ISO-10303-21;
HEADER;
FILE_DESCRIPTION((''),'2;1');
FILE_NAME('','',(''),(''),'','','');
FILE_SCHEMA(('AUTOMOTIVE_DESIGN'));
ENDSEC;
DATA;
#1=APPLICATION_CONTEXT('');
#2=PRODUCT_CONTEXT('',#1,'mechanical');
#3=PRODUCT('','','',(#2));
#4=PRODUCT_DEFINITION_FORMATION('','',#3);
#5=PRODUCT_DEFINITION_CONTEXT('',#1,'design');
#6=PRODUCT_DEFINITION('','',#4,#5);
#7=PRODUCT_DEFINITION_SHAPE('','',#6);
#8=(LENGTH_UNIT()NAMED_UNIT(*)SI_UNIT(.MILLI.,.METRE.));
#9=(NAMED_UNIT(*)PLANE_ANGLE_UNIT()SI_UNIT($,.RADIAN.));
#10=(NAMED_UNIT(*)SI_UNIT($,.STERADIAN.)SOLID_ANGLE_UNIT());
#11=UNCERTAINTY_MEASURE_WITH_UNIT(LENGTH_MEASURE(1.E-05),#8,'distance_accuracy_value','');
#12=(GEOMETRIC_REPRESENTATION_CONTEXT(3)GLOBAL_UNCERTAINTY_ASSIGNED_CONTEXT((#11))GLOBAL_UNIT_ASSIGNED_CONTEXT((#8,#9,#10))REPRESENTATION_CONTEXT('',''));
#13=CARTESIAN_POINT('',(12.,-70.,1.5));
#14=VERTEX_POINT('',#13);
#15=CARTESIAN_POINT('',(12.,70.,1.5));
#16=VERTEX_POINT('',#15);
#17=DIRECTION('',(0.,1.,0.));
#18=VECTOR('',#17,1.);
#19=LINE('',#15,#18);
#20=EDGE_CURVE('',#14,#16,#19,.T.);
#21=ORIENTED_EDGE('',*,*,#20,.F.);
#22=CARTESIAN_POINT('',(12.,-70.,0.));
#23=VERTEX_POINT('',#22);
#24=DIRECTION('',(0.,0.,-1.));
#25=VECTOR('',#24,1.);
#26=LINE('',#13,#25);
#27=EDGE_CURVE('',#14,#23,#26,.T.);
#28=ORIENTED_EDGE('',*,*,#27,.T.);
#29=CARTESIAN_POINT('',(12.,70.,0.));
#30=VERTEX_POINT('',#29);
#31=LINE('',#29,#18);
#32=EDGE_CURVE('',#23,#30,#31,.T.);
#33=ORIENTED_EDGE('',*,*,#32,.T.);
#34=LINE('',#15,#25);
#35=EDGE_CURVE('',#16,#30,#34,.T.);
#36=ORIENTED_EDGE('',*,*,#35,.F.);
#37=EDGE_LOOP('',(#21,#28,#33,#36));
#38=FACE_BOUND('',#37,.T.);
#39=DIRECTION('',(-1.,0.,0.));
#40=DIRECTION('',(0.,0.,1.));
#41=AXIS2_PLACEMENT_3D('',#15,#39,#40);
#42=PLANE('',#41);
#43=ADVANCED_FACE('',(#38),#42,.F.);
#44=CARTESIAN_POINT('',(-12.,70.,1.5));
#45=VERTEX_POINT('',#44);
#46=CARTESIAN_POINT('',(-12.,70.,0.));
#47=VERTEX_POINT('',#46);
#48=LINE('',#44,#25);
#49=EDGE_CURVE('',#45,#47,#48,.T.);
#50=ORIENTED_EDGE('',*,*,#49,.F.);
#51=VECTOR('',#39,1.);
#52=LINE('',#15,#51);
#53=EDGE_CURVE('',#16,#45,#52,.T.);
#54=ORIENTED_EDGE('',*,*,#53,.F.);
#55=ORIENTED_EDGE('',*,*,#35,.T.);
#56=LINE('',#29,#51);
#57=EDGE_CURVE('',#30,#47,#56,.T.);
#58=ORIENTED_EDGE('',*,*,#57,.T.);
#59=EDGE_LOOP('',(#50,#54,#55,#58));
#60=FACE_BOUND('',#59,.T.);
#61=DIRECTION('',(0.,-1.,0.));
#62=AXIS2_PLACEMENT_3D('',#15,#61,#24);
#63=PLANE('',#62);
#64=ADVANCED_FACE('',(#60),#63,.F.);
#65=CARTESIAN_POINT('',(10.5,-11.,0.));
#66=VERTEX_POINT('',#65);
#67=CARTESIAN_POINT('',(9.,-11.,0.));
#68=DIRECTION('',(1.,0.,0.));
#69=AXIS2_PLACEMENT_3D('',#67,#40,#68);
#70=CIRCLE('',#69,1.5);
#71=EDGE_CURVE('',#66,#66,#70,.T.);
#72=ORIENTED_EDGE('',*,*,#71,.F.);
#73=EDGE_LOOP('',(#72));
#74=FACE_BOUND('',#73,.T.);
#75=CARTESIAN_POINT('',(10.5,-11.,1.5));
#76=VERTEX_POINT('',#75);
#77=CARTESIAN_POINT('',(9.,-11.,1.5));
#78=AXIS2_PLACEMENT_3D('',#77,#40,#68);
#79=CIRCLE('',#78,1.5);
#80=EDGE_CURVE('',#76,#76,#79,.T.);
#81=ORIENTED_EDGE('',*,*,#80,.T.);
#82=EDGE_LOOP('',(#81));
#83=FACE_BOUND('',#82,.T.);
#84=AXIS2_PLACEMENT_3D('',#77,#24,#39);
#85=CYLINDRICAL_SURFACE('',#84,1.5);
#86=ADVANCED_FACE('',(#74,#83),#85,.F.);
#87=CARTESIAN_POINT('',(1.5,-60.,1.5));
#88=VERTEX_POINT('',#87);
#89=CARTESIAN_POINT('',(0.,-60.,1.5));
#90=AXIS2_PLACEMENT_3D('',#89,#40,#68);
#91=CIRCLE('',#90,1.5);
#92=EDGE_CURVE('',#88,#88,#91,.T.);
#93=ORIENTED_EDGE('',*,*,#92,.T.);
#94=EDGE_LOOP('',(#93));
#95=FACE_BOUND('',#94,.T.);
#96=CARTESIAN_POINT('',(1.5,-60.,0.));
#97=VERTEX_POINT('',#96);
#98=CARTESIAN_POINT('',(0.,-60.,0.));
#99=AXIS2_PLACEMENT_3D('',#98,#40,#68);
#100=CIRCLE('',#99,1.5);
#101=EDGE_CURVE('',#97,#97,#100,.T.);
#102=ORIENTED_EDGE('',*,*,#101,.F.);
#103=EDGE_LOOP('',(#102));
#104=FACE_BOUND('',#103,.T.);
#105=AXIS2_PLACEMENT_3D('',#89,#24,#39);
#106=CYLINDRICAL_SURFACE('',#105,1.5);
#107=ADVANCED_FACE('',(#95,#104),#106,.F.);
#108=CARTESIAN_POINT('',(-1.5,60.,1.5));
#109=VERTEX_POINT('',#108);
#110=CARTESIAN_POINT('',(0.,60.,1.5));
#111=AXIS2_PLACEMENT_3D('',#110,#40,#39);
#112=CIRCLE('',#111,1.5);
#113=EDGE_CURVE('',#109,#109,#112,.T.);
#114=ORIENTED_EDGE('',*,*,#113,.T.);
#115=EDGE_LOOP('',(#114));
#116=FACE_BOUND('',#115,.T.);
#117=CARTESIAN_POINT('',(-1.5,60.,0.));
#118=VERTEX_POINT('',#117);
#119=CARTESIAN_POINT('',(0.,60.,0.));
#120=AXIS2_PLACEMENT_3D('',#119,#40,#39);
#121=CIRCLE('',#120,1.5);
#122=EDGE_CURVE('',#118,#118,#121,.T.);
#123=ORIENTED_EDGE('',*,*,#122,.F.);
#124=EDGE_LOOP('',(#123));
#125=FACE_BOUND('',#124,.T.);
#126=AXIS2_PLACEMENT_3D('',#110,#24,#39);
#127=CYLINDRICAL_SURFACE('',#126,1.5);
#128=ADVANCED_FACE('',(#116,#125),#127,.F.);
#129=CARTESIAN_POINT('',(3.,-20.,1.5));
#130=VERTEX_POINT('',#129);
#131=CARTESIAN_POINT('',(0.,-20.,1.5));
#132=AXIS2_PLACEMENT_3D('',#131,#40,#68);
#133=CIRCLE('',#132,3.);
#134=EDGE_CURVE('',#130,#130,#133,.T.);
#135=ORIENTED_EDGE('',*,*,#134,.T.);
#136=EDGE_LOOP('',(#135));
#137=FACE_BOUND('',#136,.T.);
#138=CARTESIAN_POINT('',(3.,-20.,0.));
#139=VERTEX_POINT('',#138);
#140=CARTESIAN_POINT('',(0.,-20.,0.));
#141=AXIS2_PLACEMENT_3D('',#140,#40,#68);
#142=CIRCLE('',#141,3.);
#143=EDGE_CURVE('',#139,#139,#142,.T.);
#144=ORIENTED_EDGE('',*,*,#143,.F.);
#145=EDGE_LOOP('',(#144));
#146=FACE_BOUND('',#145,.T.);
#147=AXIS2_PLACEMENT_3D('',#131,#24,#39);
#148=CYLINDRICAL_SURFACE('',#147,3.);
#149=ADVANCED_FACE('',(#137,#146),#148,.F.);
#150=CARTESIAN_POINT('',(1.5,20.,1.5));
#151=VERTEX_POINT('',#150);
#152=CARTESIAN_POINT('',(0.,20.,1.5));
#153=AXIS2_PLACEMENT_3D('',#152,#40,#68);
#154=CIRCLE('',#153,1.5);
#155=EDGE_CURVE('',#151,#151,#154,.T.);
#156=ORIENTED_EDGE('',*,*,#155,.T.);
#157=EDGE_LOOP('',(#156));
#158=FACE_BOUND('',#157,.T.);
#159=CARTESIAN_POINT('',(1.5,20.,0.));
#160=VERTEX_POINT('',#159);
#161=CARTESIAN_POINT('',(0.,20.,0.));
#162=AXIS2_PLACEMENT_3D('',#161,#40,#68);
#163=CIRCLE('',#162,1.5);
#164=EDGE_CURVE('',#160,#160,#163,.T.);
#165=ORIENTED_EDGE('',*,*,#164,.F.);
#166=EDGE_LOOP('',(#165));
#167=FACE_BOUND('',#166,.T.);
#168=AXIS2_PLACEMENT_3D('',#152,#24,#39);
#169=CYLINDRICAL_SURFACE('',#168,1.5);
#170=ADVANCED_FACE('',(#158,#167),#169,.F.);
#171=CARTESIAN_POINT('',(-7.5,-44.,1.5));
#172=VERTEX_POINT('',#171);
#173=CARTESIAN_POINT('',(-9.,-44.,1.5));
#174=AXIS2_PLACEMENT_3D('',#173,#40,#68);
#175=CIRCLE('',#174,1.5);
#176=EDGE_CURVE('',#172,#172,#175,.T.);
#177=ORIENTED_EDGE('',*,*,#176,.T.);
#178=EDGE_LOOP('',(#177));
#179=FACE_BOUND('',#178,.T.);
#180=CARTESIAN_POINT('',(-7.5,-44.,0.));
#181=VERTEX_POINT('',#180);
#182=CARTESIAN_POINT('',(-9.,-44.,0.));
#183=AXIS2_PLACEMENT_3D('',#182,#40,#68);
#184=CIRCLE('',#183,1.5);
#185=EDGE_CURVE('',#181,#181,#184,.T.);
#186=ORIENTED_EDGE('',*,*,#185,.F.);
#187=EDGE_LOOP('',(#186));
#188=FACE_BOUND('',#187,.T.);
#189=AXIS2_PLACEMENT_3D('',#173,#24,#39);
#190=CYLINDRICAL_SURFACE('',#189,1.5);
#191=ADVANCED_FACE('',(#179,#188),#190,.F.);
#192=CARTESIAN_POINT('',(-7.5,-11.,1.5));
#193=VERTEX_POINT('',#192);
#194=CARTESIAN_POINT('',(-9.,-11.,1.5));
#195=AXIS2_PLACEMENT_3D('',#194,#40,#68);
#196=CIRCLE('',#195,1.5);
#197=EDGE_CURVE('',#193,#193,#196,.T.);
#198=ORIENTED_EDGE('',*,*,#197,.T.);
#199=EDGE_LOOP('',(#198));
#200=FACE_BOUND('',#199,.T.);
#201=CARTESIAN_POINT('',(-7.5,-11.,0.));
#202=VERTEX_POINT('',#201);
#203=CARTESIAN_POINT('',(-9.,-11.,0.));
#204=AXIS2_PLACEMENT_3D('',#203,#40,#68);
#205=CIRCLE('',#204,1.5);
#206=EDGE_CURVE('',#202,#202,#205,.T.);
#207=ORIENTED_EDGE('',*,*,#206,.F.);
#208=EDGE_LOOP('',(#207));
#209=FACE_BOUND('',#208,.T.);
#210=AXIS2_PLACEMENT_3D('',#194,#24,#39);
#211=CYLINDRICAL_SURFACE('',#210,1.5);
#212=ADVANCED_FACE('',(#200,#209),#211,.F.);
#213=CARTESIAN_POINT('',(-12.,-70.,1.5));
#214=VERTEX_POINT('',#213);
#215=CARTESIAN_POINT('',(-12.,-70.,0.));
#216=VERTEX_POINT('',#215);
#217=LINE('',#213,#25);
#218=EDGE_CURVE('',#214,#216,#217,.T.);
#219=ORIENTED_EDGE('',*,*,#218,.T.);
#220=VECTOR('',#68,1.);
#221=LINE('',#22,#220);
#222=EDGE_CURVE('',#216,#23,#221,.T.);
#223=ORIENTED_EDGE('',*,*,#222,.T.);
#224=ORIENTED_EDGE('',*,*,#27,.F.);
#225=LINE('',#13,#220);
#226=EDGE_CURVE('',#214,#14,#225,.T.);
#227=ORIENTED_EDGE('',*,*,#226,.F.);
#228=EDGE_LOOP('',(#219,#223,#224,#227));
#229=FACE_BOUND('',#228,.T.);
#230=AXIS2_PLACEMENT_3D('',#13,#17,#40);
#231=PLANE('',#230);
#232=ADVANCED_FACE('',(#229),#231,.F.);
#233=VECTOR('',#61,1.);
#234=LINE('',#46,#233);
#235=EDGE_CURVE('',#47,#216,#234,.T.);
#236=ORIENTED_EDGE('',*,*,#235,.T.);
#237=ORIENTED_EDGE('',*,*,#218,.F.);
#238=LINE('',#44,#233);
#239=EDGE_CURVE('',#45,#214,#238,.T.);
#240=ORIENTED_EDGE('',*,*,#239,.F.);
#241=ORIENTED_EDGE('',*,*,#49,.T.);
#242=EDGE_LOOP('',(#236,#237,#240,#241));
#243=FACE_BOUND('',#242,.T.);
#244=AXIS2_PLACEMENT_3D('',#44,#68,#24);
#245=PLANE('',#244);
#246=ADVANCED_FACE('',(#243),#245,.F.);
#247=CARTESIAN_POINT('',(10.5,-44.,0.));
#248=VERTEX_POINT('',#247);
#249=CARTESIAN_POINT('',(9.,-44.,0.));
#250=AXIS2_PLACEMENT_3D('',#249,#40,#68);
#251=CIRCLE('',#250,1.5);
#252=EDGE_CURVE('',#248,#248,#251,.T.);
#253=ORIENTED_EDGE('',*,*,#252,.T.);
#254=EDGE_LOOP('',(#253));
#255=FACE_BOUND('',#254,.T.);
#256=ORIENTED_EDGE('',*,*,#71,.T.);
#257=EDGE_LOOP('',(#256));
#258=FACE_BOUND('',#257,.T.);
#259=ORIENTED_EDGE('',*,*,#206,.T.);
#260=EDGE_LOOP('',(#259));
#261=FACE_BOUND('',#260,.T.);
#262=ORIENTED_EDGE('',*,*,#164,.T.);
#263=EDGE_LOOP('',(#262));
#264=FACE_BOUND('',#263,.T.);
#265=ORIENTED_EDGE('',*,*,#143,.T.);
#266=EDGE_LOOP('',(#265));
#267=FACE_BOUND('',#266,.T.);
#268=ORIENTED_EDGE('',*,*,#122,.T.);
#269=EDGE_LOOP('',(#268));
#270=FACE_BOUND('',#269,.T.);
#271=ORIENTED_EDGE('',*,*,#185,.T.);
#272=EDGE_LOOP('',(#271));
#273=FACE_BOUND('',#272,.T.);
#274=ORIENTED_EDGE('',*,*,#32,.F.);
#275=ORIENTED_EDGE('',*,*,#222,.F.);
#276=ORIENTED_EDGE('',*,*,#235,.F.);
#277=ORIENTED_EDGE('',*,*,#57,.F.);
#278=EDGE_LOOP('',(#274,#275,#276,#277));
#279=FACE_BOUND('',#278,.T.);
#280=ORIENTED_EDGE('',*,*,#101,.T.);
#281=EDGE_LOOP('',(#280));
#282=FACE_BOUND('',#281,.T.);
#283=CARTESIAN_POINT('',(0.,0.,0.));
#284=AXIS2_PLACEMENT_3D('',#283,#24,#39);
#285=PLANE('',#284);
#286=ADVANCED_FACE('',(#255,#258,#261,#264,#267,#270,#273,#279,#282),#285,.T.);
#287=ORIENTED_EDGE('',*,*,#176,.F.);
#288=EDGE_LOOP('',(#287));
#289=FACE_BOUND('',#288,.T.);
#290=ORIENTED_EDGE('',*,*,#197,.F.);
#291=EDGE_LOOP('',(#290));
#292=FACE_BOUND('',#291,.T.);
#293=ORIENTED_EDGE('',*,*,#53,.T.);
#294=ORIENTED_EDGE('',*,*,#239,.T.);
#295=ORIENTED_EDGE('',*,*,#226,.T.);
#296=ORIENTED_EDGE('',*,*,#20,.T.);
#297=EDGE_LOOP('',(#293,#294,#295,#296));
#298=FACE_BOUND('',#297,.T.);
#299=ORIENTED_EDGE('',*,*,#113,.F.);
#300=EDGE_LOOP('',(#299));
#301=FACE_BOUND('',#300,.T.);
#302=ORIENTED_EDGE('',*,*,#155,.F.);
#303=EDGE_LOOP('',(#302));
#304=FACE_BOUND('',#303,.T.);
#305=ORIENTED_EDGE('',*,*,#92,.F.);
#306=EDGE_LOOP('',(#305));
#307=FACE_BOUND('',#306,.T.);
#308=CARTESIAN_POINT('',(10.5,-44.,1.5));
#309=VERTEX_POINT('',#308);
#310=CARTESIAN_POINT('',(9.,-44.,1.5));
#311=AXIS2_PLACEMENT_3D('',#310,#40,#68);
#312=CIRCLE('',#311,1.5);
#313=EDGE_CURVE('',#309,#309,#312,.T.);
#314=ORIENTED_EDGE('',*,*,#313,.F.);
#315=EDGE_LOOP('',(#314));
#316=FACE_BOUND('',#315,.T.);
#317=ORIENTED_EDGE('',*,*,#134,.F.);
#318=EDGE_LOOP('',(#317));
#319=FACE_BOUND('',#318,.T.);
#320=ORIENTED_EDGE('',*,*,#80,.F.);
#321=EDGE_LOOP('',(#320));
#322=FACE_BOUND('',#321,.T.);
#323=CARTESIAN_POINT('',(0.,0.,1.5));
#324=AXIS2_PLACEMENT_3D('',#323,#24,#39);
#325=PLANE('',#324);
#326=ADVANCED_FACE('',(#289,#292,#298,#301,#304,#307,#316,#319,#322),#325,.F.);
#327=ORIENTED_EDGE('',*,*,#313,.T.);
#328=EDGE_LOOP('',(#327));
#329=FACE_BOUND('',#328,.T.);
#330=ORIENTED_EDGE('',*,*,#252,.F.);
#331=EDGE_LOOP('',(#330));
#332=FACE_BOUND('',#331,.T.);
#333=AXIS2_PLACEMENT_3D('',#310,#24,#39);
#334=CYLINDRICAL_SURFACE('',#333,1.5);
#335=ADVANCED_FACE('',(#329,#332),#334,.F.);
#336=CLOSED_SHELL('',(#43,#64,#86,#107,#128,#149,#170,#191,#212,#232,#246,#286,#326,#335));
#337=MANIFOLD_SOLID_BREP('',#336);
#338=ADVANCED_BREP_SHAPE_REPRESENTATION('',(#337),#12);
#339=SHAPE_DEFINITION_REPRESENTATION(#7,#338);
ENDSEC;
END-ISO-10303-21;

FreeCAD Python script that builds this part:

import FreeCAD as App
import Part
import Sketcher
Q = App.Units.Quantity


def add_polygon(sketch, points):
    """Adds a closed chain of lines whose ends are joined by coincident constraints."""
    first, n = sketch.GeometryCount, len(points)
    for a, b in zip(points, points[1:] + points[:1]):
        sketch.addGeometry(Part.LineSegment(App.Vector(*a, 0), App.Vector(*b, 0)), False)
    for i in range(n):
        sketch.addConstraint(Sketcher.Constraint("Coincident", first + i, 2, first + (i + 1) % n, 1))

doc = App.newDocument("Part")
params = doc.addObject("Spreadsheet::Sheet", "Params")
for row, (alias, value) in enumerate([
    ("sketch1_diameter", "3 mm"),
    ("sketch1_diameter2", "6 mm"),
    ("sketch1_width", "24 mm"),
    ("sketch1_height", "140 mm"),
    ("pad1_length", "1.5 mm"),
], start=1):
    params.set(f"A{row}", alias)
    params.set(f"B{row}", "=" + value)
    params.setAlias(f"B{row}", alias)

body = doc.addObject("PartDesign::Body", "Body")

sketch1 = body.newObject("Sketcher::SketchObject", "Sketch")
sketch1.AttachmentSupport = (doc.getObject("XY_Plane"), [""])
sketch1.MapMode = "FlatFace"
add_polygon(sketch1, [(-12, 70), (-12, -70), (12, -70), (12, 70)])
sketch1.addGeometry(Part.Circle(App.Vector(-9, -44, 0), App.Vector(0, 0, 1), 1.5), False)
sketch1.addGeometry(Part.Circle(App.Vector(-9, -11, 0), App.Vector(0, 0, 1), 1.5), False)
sketch1.addGeometry(Part.Circle(App.Vector(0, -60, 0), App.Vector(0, 0, 1), 1.5), False)
sketch1.addGeometry(Part.Circle(App.Vector(9, -44, 0), App.Vector(0, 0, 1), 1.5), False)
sketch1.addGeometry(Part.Circle(App.Vector(0, -20, 0), App.Vector(0, 0, 1), 3), False)
sketch1.addGeometry(Part.Circle(App.Vector(9, -11, 0), App.Vector(0, 0, 1), 1.5), False)
sketch1.addGeometry(Part.Circle(App.Vector(0, 20, 0), App.Vector(0, 0, 1), 1.5), False)
sketch1.addGeometry(Part.Circle(App.Vector(0, 60, 0), App.Vector(0, 0, 1), 1.5), False)
sketch1.addConstraint([
    Sketcher.Constraint("Vertical", 0),
    Sketcher.Constraint("Horizontal", 1),
    Sketcher.Constraint("Vertical", 2),
    Sketcher.Constraint("Horizontal", 3),
    Sketcher.Constraint("Equal", 4, 5),
    Sketcher.Constraint("Equal", 5, 6),
    Sketcher.Constraint("Equal", 6, 7),
    Sketcher.Constraint("Equal", 7, 9),
    Sketcher.Constraint("Equal", 9, 10),
    Sketcher.Constraint("Equal", 10, 11),
    Sketcher.Constraint("Symmetric", 8, 3, 10, 3, -1, 1),
    Sketcher.Constraint("Symmetric", 6, 3, 11, 3, -1, 1),
    Sketcher.Constraint("Symmetric", 0, 2, 2, 2, -1, 1),
    Sketcher.Constraint("Symmetric", 4, 3, 7, 3, -2),
    Sketcher.Constraint("Symmetric", 5, 3, 9, 3, -2),
    Sketcher.Constraint("PointOnObject", 6, 3, -2),
    Sketcher.Constraint("PointOnObject", 8, 3, -2),
    Sketcher.Constraint("Vertical", 4, 3, 5, 3),
    Sketcher.Constraint("Diameter", 4, Q("3 mm")),
    Sketcher.Constraint("Diameter", 8, Q("6 mm")),
    Sketcher.Constraint("DistanceX", 1, 1, 1, 2, Q("24 mm")),
    Sketcher.Constraint("DistanceY", 0, 2, 0, 1, Q("140 mm")),
    Sketcher.Constraint("DistanceX", 4, 3, -1, 1, Q("9 mm")),
    Sketcher.Constraint("DistanceY", 4, 3, -1, 1, Q("44 mm")),
    Sketcher.Constraint("DistanceY", 5, 3, -1, 1, Q("11 mm")),
    Sketcher.Constraint("DistanceY", 6, 3, -1, 1, Q("60 mm")),
    Sketcher.Constraint("DistanceY", 8, 3, -1, 1, Q("20 mm")),
])
sketch1.setExpression("Constraints[22]", "Params.sketch1_diameter")
sketch1.setExpression("Constraints[23]", "Params.sketch1_diameter2")
sketch1.setExpression("Constraints[24]", "Params.sketch1_width")
sketch1.setExpression("Constraints[25]", "Params.sketch1_height")
pad1 = body.newObject("PartDesign::Pad", "Pad")
pad1.Profile = sketch1
pad1.setExpression("Length", "Params.pad1_length")

doc.recompute()
